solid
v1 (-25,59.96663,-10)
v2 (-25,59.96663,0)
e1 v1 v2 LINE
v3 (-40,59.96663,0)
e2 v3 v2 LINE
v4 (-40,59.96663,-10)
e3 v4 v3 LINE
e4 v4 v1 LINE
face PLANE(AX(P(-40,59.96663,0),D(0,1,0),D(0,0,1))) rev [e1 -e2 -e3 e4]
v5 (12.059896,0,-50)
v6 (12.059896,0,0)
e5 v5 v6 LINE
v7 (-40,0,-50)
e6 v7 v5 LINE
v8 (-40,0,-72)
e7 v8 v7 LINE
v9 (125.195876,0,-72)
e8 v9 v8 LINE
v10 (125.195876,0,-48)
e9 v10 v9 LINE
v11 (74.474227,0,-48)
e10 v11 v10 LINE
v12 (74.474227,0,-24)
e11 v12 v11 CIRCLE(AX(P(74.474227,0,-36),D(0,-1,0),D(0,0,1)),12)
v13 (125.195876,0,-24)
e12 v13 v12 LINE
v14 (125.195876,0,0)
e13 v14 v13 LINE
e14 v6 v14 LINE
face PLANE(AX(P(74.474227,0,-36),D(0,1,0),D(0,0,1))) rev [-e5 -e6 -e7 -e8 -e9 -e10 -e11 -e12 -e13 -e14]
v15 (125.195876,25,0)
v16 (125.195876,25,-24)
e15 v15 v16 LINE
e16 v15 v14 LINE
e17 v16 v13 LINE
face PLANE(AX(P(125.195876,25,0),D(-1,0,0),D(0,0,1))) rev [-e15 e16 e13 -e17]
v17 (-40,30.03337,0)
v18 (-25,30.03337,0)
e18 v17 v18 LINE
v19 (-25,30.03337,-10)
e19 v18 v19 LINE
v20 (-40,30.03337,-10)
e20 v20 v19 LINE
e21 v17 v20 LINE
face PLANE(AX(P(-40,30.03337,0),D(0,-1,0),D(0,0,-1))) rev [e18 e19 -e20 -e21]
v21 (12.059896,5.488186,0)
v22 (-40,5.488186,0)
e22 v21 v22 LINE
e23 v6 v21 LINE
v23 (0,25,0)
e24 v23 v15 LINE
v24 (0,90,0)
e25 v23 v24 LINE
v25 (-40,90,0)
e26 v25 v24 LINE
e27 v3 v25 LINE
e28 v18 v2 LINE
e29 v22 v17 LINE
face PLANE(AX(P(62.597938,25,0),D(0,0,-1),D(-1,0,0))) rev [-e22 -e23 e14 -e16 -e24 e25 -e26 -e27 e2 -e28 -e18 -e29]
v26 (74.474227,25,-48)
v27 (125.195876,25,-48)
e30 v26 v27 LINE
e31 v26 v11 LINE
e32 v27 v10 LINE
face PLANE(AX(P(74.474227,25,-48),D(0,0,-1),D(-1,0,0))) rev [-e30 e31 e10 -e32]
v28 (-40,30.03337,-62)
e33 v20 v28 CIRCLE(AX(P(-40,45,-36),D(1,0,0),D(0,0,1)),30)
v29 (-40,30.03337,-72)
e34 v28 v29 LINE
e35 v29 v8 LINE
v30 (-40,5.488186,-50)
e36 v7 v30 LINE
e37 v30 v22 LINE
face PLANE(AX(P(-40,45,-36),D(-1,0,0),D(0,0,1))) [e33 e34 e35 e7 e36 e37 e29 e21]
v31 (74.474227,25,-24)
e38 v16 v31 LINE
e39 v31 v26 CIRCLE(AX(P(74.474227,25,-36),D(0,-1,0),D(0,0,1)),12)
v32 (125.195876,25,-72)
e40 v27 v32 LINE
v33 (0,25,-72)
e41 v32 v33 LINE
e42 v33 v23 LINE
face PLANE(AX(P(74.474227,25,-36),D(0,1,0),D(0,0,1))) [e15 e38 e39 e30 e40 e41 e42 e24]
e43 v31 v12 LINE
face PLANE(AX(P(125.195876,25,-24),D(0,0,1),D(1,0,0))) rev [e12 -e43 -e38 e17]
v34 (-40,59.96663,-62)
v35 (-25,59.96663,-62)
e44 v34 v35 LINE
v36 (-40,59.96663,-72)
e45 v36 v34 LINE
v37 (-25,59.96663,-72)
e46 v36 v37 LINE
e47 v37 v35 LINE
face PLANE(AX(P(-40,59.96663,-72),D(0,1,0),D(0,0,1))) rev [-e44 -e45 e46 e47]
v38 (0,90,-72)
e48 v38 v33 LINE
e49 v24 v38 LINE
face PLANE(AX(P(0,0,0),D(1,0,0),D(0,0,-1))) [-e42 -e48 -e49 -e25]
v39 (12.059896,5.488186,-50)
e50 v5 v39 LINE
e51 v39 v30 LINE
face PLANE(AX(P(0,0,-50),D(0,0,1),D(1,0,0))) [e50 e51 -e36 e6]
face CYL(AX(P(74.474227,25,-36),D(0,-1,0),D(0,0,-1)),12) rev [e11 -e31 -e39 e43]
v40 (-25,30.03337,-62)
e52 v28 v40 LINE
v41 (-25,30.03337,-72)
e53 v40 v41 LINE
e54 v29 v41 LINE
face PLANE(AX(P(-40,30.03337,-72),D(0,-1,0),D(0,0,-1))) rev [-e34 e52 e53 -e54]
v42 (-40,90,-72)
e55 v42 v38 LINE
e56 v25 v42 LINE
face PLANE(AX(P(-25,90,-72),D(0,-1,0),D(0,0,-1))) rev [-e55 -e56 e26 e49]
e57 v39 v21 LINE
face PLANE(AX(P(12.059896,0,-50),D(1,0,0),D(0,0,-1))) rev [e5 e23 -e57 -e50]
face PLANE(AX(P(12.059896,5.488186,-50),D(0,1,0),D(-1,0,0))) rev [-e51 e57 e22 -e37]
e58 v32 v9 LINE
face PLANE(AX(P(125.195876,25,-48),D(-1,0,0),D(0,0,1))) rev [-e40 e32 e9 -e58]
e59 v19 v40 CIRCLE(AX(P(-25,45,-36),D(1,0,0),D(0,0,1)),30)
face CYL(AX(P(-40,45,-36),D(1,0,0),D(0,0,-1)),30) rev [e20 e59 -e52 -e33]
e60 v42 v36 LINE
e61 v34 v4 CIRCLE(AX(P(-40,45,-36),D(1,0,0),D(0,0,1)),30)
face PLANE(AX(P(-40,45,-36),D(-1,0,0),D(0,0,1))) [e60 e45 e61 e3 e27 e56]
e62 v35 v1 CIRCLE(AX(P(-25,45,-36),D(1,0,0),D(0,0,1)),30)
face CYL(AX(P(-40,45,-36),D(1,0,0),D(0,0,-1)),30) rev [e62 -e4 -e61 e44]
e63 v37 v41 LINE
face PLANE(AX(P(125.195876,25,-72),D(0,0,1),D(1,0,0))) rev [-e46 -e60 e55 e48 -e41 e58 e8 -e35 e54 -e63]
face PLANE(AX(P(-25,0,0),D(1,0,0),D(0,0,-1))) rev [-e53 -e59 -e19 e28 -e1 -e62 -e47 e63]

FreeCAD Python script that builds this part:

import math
import FreeCAD as App
import Part
import Sketcher

V = App.Vector
Q = App.Units.Quantity

doc = App.newDocument("Part")
body = doc.addObject("PartDesign::Body", "Body")

sketch1 = body.newObject("Sketcher::SketchObject", "Sketch")
sketch1.AttachmentSupport = (doc.getObject("XZ_Plane"), [""])
sketch1.MapMode = "FlatFace"
sketch1.addGeometry(Part.LineSegment(V(0, 0, 0), V(125, 0, 0)), False)
sketch1.addGeometry(Part.LineSegment(V(125, 0, 0), V(125, -24, 0)), False)
sketch1.addGeometry(Part.LineSegment(V(125, -24, 0), V(74, -24, 0)), False)
sketch1.addGeometry(Part.ArcOfCircle(Part.Circle(V(74, -36, 0), V(0, 0, 1), 12), math.radians(90), math.radians(270)), False)
sketch1.addGeometry(Part.LineSegment(V(74, -48, 0), V(125, -48, 0)), False)
sketch1.addGeometry(Part.LineSegment(V(125, -48, 0), V(125, -72, 0)), False)
sketch1.addGeometry(Part.LineSegment(V(125, -72, 0), V(0, -72, 0)), False)
sketch1.addGeometry(Part.LineSegment(V(0, -72, 0), V(0, 0, 0)), False)
sketch1.addConstraint(Sketcher.Constraint("Coincident", 0, 2, 1, 1))
sketch1.addConstraint(Sketcher.Constraint("Coincident", 1, 2, 2, 1))
sketch1.addConstraint(Sketcher.Constraint("Tangent", 2, 2, 3, 1))
sketch1.addConstraint(Sketcher.Constraint("Tangent", 3, 2, 4, 1))
sketch1.addConstraint(Sketcher.Constraint("Coincident", 4, 2, 5, 1))
sketch1.addConstraint(Sketcher.Constraint("Coincident", 5, 2, 6, 1))
sketch1.addConstraint(Sketcher.Constraint("Coincident", 6, 2, 7, 1))
sketch1.addConstraint(Sketcher.Constraint("Coincident", 7, 2, 0, 1))
sketch1.addConstraint(Sketcher.Constraint("Horizontal", 0))
sketch1.addConstraint(Sketcher.Constraint("Vertical", 1))
sketch1.addConstraint(Sketcher.Constraint("Horizontal", 2))
sketch1.addConstraint(Sketcher.Constraint("Horizontal", 4))
sketch1.addConstraint(Sketcher.Constraint("Vertical", 5))
sketch1.addConstraint(Sketcher.Constraint("Horizontal", 6))
sketch1.addConstraint(Sketcher.Constraint("Vertical", 7))
sketch1.addConstraint(Sketcher.Constraint("Coincident", 7, 2, -1, 1))
sketch1.addConstraint(Sketcher.Constraint("Vertical", 1, 2, 4, 2))
sketch1.addConstraint(Sketcher.Constraint("Equal", 1, 5))
sketch1.addConstraint(Sketcher.Constraint("Radius", 3, Q("12 mm")))
sketch1.addConstraint(Sketcher.Constraint("DistanceY", 1, 2, 1, 1, Q("24 mm")))
sketch1.addConstraint(Sketcher.Constraint("DistanceX", 2, 2, 2, 1, Q("50.721649 mm")))
sketch1.addConstraint(Sketcher.Constraint("DistanceX", 0, 1, 0, 2, Q("125.195876 mm")))
pad1 = body.newObject("PartDesign::Pad", "Pad")
pad1.Profile = sketch1
pad1.Length = 25
pad1.Reversed = True

sketch2 = body.newObject("Sketcher::SketchObject", "Sketch001")
sketch2.AttachmentSupport = (doc.getObject("YZ_Plane"), [""])
sketch2.MapMode = "FlatFace"
sketch2.addGeometry(Part.LineSegment(V(90, -72, 0), V(0, -72, 0)), False)
sketch2.addGeometry(Part.LineSegment(V(0, -72, 0), V(0, 0, 0)), False)
sketch2.addGeometry(Part.LineSegment(V(0, 0, 0), V(90, 0, 0)), False)
sketch2.addGeometry(Part.LineSegment(V(90, 0, 0), V(90, -72, 0)), False)
sketch2.addConstraint(Sketcher.Constraint("Coincident", 0, 2, 1, 1))
sketch2.addConstraint(Sketcher.Constraint("Coincident", 1, 2, 2, 1))
sketch2.addConstraint(Sketcher.Constraint("Coincident", 2, 2, 3, 1))
sketch2.addConstraint(Sketcher.Constraint("Coincident", 3, 2, 0, 1))
sketch2.addConstraint(Sketcher.Constraint("Horizontal", 0))
sketch2.addConstraint(Sketcher.Constraint("Vertical", 1))
sketch2.addConstraint(Sketcher.Constraint("Horizontal", 2))
sketch2.addConstraint(Sketcher.Constraint("Vertical", 3))
sketch2.addConstraint(Sketcher.Constraint("Coincident", 1, 2, -1, 1))
sketch2.addConstraint(Sketcher.Constraint("DistanceX", 0, 2, 0, 1, Q("90 mm")))
sketch2.addConstraint(Sketcher.Constraint("DistanceY", 1, 1, 1, 2, Q("72 mm")))
pad2 = body.newObject("PartDesign::Pad", "Pad001")
pad2.Profile = sketch2
pad2.Length = 25
pad2.Reversed = True

sketch3 = body.newObject("Sketcher::SketchObject", "Sketch002")
sketch3.AttachmentSupport = (doc.getObject("XY_Plane"), [""])
sketch3.MapMode = "FlatFace"
sketch3.addGeometry(Part.LineSegment(V(-25, 5, 0), V(-25, 0, 0)), False)
sketch3.addGeometry(Part.LineSegment(V(-25, 0, 0), V(12, 0, 0)), False)
sketch3.addGeometry(Part.LineSegment(V(12, 0, 0), V(12, 5, 0)), False)
sketch3.addGeometry(Part.LineSegment(V(12, 5, 0), V(-25, 5, 0)), False)
sketch3.addConstraint(Sketcher.Constraint("Coincident", 0, 2, 1, 1))
sketch3.addConstraint(Sketcher.Constraint("Coincident", 1, 2, 2, 1))
sketch3.addConstraint(Sketcher.Constraint("Coincident", 2, 2, 3, 1))
sketch3.addConstraint(Sketcher.Constraint("Coincident", 3, 2, 0, 1))
sketch3.addConstraint(Sketcher.Constraint("Vertical", 0))
sketch3.addConstraint(Sketcher.Constraint("Horizontal", 1))
sketch3.addConstraint(Sketcher.Constraint("Vertical", 2))
sketch3.addConstraint(Sketcher.Constraint("Horizontal", 3))
sketch3.addConstraint(Sketcher.Constraint("PointOnObject", 0, 2, -1))
sketch3.addConstraint(Sketcher.Constraint("DistanceX", 0, 2, -1, 1, Q("25 mm")))
sketch3.addConstraint(Sketcher.Constraint("DistanceX", 1, 1, 1, 2, Q("37.059896 mm")))
sketch3.addConstraint(Sketcher.Constraint("DistanceY", 0, 2, 0, 1, Q("5.488186 mm")))
pocket1 = body.newObject("PartDesign::Pocket", "Pocket")
pocket1.Profile = sketch3
pocket1.Length = 50

sketch4 = body.newObject("Sketcher::SketchObject", "Sketch003")
sketch4.AttachmentSupport = (doc.getObject("YZ_Plane"), [""])
sketch4.MapMode = "FlatFace"
sketch4.AttachmentOffset = App.Placement(V(0, 0, -25), App.Rotation())
sketch4.addGeometry(Part.LineSegment(V(5, -50, 0), V(5, 0, 0)), False)
sketch4.addGeometry(Part.LineSegment(V(5, 0, 0), V(30, 0, 0)), False)
sketch4.addGeometry(Part.LineSegment(V(30, 0, 0), V(30, -10, 0)), False)
sketch4.addGeometry(Part.ArcOfCircle(Part.Circle(V(45, -36, 0), V(0, 0, 1), 30), math.radians(120), math.radians(240)), False)
sketch4.addGeometry(Part.LineSegment(V(30, -62, 0), V(30, -72, 0)), False)
sketch4.addGeometry(Part.LineSegment(V(30, -72, 0), V(0, -72, 0)), False)
sketch4.addGeometry(Part.LineSegment(V(0, -72, 0), V(0, -50, 0)), False)
sketch4.addGeometry(Part.LineSegment(V(0, -50, 0), V(5, -50, 0)), False)
sketch4.addGeometry(Part.LineSegment(V(60, 0, 0), V(90, 0, 0)), False)
sketch4.addGeometry(Part.LineSegment(V(90, 0, 0), V(90, -72, 0)), False)
sketch4.addGeometry(Part.LineSegment(V(90, -72, 0), V(60, -72, 0)), False)
sketch4.addGeometry(Part.LineSegment(V(60, -72, 0), V(60, -62, 0)), False)
sketch4.addGeometry(Part.ArcOfCircle(Part.Circle(V(45, -36, 0), V(0, 0, 1), 30), math.radians(-60), math.radians(60)), False)
sketch4.addGeometry(Part.LineSegment(V(60, -10, 0), V(60, 0, 0)), False)
sketch4.addConstraint(Sketcher.Constraint("Coincident", 0, 2, 1, 1))
sketch4.addConstraint(Sketcher.Constraint("Coincident", 1, 2, 2, 1))
sketch4.addConstraint(Sketcher.Constraint("Coincident", 2, 2, 3, 1))
sketch4.addConstraint(Sketcher.Constraint("Coincident", 3, 2, 4, 1))
sketch4.addConstraint(Sketcher.Constraint("Coincident", 4, 2, 5, 1))
sketch4.addConstraint(Sketcher.Constraint("Coincident", 5, 2, 6, 1))
sketch4.addConstraint(Sketcher.Constraint("Coincident", 6, 2, 7, 1))
sketch4.addConstraint(Sketcher.Constraint("Coincident", 7, 2, 0, 1))
sketch4.addConstraint(Sketcher.Constraint("Coincident", 8, 2, 9, 1))
sketch4.addConstraint(Sketcher.Constraint("Coincident", 9, 2, 10, 1))
sketch4.addConstraint(Sketcher.Constraint("Coincident", 10, 2, 11, 1))
sketch4.addConstraint(Sketcher.Constraint("Coincident", 11, 2, 12, 1))
sketch4.addConstraint(Sketcher.Constraint("Coincident", 12, 2, 13, 1))
sketch4.addConstraint(Sketcher.Constraint("Coincident", 13, 2, 8, 1))
sketch4.addConstraint(Sketcher.Constraint("Vertical", 0))
sketch4.addConstraint(Sketcher.Constraint("Horizontal", 1))
sketch4.addConstraint(Sketcher.Constraint("Vertical", 2))
sketch4.addConstraint(Sketcher.Constraint("Vertical", 4))
sketch4.addConstraint(Sketcher.Constraint("Horizontal", 5))
sketch4.addConstraint(Sketcher.Constraint("Vertical", 6))
sketch4.addConstraint(Sketcher.Constraint("Horizontal", 7))
sketch4.addConstraint(Sketcher.Constraint("Horizontal", 8))
sketch4.addConstraint(Sketcher.Constraint("Vertical", 9))
sketch4.addConstraint(Sketcher.Constraint("Horizontal", 10))
sketch4.addConstraint(Sketcher.Constraint("Vertical", 11))
sketch4.addConstraint(Sketcher.Constraint("Vertical", 13))
sketch4.addConstraint(Sketcher.Constraint("Coincident", 12, 3, 3, 3))
sketch4.addConstraint(Sketcher.Constraint("Equal", 3, 12))
sketch4.addConstraint(Sketcher.Constraint("PointOnObject", 0, 2, -1))
sketch4.addConstraint(Sketcher.Constraint("PointOnObject", 5, 2, -2))
sketch4.addConstraint(Sketcher.Constraint("PointOnObject", 8, 2, -1))
sketch4.addConstraint(Sketcher.Constraint("Horizontal", 5, 2, 9, 2))
sketch4.addConstraint(Sketcher.Constraint("Horizontal", 3, 2, 11, 2))
sketch4.addConstraint(Sketcher.Constraint("Horizontal", 2, 2, 12, 2))
sketch4.addConstraint(Sketcher.Constraint("Vertical", 2, 2, 3, 2))
sketch4.addConstraint(Sketcher.Constraint("Equal", 5, 8))
sketch4.addConstraint(Sketcher.Constraint("Equal", 2, 4))
sketch4.addConstraint(Sketcher.Constraint("Radius", 3, Q("30 mm")))
sketch4.addConstraint(Sketcher.Constraint("DistanceY", 0, 1, 0, 2, Q("50 mm")))
sketch4.addConstraint(Sketcher.Constraint("DistanceY", 2, 2, 2, 1, Q("10 mm")))
sketch4.addConstraint(Sketcher.Constraint("DistanceY", 6, 1, 6, 2, Q("22 mm")))
sketch4.addConstraint(Sketcher.Constraint("DistanceX", -1, 1, 3, 3, Q("45 mm")))
sketch4.addConstraint(Sketcher.Constraint("DistanceX", 1, 1, 1, 2, Q("24.545184 mm")))
pad3 = body.newObject("PartDesign::Pad", "Pad002")
pad3.Profile = sketch4
pad3.Length = 15
pad3.Reversed = True

doc.recompute()
